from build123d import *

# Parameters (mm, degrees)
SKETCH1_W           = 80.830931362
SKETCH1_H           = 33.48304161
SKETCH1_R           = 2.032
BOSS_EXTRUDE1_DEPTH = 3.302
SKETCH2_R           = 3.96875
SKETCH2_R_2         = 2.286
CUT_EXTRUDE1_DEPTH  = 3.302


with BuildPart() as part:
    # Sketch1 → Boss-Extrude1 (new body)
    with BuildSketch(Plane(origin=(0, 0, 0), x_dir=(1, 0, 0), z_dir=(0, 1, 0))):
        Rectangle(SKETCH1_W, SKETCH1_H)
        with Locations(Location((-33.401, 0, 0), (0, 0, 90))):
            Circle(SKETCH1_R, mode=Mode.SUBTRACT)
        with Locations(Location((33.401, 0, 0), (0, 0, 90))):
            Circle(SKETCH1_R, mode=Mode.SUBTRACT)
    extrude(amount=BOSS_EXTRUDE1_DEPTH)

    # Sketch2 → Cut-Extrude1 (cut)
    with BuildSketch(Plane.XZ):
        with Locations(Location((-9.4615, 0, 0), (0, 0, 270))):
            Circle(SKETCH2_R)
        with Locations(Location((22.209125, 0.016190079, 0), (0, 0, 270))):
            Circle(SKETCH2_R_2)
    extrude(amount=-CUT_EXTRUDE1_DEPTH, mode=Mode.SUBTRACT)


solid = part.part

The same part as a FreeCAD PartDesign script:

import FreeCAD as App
import Part
import Sketcher

V = App.Vector
Q = App.Units.Quantity

doc = App.newDocument("Part")
body = doc.addObject("PartDesign::Body", "Body")

# Sketch on XZ plane
sketch1 = doc.addObject("Sketcher::SketchObject", "Sketch")
body.addObject(sketch1)
sketch1.AttachmentSupport = (doc.XZ_Plane, [""])
sketch1.MapMode = "FlatFace"
sketch1.addGeometry([
    Part.LineSegment(V(-40.4, -16.7, 0), V(-40.4, 16.7, 0)),  # 0
    Part.LineSegment(V(-40.4, 16.7, 0), V(40.4, 16.7, 0)),  # 1
    Part.LineSegment(V(40.4, 16.7, 0), V(40.4, -16.7, 0)),  # 2
    Part.LineSegment(V(40.4, -16.7, 0), V(-40.4, -16.7, 0)),  # 3
    Part.Circle(V(-33.4, 0, 0), V(0, 0, 1), 2),  # 4
    Part.Circle(V(33.4, 0, 0), V(0, 0, 1), 2),  # 5
], False)
sketch1.addConstraint([
    Sketcher.Constraint("Coincident", 0, 2, 1, 1),
    Sketcher.Constraint("Coincident", 1, 2, 2, 1),
    Sketcher.Constraint("Coincident", 2, 2, 3, 1),
    Sketcher.Constraint("Coincident", 3, 2, 0, 1),
    Sketcher.Constraint("Vertical", 0),
    Sketcher.Constraint("Horizontal", 1),
    Sketcher.Constraint("Vertical", 2),
    Sketcher.Constraint("Horizontal", 3),
    Sketcher.Constraint("Equal", 4, 5),
    Sketcher.Constraint("Symmetric", 4, 3, 5, 3, -1, 1),
    Sketcher.Constraint("Symmetric", 0, 2, 2, 2, -1, 1),
    Sketcher.Constraint("PointOnObject", 4, 3, -1),
    Sketcher.Constraint("Diameter", 4, Q("0.16 in")),
    Sketcher.Constraint("DistanceX", 4, 3, 5, 3, Q("2.63 in")),
    Sketcher.Constraint("DistanceX", 1, 1, 1, 2, 80.830931),
    Sketcher.Constraint("DistanceY", 0, 1, 0, 2, 33.483042),
])
pad1 = doc.addObject("PartDesign::Pad", "Pad")
body.addObject(pad1)
pad1.Profile = sketch1
pad1.Length = Q("0.13 in")
pad1.Reversed = True

# Sketch on XZ plane
sketch2 = doc.addObject("Sketcher::SketchObject", "Sketch001")
body.addObject(sketch2)
sketch2.AttachmentSupport = (doc.XZ_Plane, [""])
sketch2.MapMode = "FlatFace"
sketch2.addGeometry([
    Part.Circle(V(-9.5, 0, 0), V(0, 0, 1), 4),
    Part.Circle(V(22.2, 0, 0), V(0, 0, 1), 2.3),
], False)
sketch2.addConstraint([
    Sketcher.Constraint("PointOnObject", 0, 3, -1),
    Sketcher.Constraint("Diameter", 1, Q("0.18 in")),
    Sketcher.Constraint("Diameter", 0, Q("0.3125 in")),
    Sketcher.Constraint("DistanceX", 0, 3, -1, 1, Q("0.3725 in")),
    Sketcher.Constraint("DistanceY", -1, 1, 1, 3, 0.01619),
    Sketcher.Constraint("DistanceX", -1, 1, 1, 3, 22.209125),
])
pocket1 = doc.addObject("PartDesign::Pocket", "Pocket")
body.addObject(pocket1)
pocket1.Profile = sketch2
pocket1.Length = Q("0.13 in")

doc.recompute()
